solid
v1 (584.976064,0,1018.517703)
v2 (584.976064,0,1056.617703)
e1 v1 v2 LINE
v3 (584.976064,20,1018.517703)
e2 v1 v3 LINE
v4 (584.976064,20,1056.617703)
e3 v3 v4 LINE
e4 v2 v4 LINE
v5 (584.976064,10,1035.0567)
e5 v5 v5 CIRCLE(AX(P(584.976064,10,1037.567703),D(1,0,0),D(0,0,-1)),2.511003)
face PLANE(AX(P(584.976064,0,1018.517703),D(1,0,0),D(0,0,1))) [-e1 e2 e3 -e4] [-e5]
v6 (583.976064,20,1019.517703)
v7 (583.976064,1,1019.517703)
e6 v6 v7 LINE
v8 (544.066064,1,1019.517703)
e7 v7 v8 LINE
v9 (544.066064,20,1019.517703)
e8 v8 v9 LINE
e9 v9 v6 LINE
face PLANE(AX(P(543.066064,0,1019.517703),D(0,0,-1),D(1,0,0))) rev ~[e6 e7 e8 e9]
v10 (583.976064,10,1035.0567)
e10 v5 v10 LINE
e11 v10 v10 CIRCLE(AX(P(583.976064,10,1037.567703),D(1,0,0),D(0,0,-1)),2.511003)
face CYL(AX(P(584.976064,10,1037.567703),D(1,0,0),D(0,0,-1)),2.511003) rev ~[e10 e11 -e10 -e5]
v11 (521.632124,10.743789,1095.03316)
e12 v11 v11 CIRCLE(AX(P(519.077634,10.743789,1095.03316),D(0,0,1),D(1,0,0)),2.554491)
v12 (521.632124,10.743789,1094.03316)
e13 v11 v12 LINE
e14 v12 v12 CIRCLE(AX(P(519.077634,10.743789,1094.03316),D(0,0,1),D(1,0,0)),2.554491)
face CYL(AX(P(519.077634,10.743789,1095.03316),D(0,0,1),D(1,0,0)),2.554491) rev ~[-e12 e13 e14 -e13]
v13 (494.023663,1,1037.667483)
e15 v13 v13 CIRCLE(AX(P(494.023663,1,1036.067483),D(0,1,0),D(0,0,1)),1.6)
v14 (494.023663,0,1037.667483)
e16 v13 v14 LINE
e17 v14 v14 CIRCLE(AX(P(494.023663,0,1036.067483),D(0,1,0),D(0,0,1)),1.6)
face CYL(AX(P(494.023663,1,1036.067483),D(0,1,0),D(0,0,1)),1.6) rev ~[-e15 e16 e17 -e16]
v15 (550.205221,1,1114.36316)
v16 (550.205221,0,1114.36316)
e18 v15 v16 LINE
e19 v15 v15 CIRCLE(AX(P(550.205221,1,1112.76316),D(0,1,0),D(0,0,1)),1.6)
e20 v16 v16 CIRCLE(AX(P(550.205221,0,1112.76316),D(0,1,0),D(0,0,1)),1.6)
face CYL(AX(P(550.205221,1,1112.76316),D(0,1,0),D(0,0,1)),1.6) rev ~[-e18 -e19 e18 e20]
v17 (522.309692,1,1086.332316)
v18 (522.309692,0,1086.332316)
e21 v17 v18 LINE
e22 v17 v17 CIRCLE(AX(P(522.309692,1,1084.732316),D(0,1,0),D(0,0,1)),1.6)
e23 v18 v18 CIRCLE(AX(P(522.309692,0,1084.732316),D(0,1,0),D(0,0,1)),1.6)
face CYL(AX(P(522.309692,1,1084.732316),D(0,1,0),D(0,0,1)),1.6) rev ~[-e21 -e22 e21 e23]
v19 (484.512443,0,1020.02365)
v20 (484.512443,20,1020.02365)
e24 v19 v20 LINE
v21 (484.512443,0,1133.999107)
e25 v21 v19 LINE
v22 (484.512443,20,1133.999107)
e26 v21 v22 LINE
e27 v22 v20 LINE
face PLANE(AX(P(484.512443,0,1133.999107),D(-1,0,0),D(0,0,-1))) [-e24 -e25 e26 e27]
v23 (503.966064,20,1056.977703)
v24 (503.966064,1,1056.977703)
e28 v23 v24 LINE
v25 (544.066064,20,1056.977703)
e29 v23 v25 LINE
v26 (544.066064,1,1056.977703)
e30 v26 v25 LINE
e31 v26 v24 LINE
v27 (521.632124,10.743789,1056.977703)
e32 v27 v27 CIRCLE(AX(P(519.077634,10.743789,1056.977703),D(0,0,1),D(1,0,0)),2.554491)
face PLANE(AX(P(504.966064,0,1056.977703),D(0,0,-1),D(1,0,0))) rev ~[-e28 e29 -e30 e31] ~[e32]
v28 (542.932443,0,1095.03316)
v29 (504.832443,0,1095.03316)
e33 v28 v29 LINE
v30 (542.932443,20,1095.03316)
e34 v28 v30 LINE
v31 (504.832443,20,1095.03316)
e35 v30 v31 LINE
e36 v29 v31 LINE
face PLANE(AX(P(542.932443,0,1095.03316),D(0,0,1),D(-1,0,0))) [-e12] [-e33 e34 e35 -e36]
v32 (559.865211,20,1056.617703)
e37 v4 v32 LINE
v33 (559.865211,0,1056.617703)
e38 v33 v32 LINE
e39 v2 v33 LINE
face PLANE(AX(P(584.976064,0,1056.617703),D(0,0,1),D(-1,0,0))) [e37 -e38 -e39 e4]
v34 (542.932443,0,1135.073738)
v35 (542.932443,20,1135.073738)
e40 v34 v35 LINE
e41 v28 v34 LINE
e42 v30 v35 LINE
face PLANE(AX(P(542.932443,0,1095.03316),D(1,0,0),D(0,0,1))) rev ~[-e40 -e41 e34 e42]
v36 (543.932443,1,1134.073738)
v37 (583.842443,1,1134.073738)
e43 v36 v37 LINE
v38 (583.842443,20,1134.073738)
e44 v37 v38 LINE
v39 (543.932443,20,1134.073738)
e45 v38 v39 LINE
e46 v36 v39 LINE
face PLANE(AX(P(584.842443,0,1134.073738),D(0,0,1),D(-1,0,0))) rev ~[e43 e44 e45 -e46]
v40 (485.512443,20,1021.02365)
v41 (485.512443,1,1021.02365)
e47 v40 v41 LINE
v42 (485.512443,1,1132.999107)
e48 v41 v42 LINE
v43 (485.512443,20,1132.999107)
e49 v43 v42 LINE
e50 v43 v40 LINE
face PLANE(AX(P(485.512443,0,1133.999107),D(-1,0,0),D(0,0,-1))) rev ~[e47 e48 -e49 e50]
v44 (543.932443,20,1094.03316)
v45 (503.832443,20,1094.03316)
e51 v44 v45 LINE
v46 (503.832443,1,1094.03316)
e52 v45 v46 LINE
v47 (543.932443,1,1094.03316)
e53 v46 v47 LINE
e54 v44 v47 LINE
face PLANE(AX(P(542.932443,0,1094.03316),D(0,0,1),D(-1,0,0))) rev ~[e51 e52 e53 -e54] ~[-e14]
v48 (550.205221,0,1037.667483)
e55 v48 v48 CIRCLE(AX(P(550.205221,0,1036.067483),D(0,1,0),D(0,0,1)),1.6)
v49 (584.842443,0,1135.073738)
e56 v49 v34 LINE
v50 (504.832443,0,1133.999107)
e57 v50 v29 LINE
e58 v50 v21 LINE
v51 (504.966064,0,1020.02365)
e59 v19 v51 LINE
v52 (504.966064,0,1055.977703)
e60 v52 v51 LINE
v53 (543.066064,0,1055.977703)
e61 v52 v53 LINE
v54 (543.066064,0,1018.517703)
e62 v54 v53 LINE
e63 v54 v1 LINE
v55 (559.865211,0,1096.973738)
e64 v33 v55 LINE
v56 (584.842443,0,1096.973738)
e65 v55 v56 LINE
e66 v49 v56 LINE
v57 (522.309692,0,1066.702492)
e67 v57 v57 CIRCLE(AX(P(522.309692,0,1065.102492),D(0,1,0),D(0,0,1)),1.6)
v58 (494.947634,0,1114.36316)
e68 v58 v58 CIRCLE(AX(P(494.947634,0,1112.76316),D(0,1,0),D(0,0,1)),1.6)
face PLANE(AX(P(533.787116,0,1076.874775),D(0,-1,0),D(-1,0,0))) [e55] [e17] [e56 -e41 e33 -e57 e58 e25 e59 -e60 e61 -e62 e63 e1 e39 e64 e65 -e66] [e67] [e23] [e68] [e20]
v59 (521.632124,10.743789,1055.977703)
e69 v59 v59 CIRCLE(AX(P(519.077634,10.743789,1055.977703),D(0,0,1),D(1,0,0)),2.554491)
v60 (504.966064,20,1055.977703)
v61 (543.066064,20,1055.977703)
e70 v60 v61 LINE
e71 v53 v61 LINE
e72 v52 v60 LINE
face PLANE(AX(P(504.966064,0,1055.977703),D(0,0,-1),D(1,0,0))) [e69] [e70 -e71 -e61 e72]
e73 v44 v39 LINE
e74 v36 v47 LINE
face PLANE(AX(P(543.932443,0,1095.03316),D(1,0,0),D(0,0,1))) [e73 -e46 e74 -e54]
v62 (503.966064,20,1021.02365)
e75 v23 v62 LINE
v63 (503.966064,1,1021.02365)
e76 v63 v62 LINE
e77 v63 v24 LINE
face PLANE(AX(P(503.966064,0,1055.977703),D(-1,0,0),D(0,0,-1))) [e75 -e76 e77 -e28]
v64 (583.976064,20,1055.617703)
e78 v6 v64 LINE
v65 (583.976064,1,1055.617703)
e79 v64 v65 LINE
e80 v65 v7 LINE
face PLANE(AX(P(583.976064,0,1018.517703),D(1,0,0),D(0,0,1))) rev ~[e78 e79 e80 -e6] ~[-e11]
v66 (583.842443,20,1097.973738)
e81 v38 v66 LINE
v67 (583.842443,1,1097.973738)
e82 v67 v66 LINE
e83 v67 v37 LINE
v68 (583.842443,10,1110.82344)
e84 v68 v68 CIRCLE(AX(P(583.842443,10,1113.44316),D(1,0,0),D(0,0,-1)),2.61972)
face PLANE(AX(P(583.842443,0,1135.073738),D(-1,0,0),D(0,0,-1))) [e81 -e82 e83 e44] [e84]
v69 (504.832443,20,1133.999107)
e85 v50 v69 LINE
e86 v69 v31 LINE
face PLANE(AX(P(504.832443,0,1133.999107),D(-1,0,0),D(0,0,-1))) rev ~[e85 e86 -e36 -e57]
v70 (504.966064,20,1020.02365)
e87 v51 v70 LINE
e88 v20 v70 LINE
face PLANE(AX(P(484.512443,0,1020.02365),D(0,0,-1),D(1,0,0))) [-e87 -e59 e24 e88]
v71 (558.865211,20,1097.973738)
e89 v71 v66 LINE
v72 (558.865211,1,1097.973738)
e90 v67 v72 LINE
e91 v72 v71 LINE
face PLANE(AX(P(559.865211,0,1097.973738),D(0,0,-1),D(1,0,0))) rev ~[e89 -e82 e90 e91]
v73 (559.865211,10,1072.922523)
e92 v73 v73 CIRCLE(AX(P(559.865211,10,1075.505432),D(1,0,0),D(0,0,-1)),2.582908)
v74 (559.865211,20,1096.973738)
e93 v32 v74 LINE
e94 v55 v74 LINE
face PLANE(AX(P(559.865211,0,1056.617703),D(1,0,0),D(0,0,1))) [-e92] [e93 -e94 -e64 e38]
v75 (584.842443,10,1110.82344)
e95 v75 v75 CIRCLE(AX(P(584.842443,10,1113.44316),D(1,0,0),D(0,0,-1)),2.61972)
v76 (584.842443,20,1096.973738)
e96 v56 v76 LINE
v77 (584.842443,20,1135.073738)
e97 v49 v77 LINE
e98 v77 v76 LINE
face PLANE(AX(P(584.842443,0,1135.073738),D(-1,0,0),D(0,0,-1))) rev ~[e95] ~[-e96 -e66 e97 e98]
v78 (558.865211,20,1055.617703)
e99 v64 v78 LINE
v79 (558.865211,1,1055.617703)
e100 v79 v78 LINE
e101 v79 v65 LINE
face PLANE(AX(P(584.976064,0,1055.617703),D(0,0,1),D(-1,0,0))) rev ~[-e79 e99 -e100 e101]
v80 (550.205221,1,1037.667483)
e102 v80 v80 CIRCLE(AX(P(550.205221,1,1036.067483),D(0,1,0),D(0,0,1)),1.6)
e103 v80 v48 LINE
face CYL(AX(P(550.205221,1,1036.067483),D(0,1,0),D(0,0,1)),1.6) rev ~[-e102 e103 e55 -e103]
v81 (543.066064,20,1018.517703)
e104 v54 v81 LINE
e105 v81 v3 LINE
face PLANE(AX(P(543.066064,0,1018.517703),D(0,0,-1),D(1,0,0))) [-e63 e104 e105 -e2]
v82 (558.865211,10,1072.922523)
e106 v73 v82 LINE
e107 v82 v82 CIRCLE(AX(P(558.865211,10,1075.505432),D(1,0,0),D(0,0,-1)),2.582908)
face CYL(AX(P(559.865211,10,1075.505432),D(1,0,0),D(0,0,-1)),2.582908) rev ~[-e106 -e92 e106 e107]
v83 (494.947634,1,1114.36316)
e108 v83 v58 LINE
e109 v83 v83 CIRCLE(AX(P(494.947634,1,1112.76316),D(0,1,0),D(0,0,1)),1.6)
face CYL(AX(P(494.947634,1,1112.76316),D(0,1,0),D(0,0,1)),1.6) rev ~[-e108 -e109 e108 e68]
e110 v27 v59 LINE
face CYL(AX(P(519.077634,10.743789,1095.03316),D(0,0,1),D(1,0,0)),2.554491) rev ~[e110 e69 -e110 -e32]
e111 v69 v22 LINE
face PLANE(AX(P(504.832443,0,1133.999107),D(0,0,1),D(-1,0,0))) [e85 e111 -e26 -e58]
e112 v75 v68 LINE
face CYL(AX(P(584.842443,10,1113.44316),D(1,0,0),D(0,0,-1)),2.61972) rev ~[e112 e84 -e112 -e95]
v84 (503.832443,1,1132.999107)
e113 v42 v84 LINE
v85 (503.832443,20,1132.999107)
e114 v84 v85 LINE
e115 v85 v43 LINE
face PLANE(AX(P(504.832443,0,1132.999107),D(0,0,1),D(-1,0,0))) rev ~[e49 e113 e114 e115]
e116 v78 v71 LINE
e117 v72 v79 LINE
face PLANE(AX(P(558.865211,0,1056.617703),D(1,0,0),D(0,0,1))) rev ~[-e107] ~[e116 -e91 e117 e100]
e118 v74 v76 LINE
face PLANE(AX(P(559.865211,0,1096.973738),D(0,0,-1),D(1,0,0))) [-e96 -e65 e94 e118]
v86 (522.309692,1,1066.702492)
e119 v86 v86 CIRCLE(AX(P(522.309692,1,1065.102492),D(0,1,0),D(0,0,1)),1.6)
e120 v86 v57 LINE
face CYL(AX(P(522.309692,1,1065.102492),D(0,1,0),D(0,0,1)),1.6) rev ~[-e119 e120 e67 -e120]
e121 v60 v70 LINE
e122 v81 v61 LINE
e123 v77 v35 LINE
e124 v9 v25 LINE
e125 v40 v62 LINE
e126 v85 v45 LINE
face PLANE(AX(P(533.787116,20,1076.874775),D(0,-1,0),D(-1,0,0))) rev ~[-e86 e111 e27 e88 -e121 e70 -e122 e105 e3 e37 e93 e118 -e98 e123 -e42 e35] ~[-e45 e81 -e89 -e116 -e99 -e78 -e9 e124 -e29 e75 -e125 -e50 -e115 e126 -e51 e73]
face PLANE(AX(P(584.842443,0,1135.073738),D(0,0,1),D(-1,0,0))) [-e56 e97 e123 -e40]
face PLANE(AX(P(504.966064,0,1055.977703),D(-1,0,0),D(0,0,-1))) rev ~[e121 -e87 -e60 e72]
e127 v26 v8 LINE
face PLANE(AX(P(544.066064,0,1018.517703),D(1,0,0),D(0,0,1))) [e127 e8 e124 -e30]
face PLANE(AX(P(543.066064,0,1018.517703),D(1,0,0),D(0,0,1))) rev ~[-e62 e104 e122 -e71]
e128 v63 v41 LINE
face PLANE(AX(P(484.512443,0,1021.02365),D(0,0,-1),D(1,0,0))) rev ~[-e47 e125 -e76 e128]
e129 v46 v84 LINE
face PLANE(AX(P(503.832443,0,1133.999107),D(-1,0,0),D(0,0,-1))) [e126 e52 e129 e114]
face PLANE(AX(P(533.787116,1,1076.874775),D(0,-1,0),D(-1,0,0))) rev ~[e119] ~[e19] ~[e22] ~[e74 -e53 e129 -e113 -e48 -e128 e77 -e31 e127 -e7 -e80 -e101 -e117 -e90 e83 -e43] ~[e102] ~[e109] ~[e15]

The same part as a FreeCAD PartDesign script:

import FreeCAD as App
import Part
import Sketcher


def faces_at(feature, points):
    """Names of the faces that lie closest to the given points."""
    faces = feature.Shape.Faces
    near = lambda p: min(range(len(faces)), key=lambda i: faces[i].distToShape(Part.Vertex(*p))[0])
    return sorted({f"Face{near(p) + 1}" for p in points})


def add_polygon(sketch, points):
    """Adds a closed chain of lines whose ends are joined by coincident constraints."""
    first, n = sketch.GeometryCount, len(points)
    for a, b in zip(points, points[1:] + points[:1]):
        sketch.addGeometry(Part.LineSegment(App.Vector(*a, 0), App.Vector(*b, 0)), False)
    for i in range(n):
        sketch.addConstraint(Sketcher.Constraint("Coincident", first + i, 2, first + (i + 1) % n, 1))

doc = App.newDocument("Part")
params = doc.addObject("Spreadsheet::Sheet", "Params")
for row, (alias, value) in enumerate([
    ("sketch1_width", "38.1 mm"),
    ("sketch1_width2", "20.32 mm"),
    ("sketch1_width3", "41.91 mm"),
    ("sketch1_height", "37.46 mm"),
    ("pad1_length", "20 mm"),
    ("thickness_wall", "1 mm"),
    ("pocket1_length", "40.64 mm"),
    ("pocket2_length", "10 mm"),
    ("pocket3_length", "10 mm"),
    ("pocket4_length", "10 mm"),
    ("sketch6_diameter", "3.2 mm"),
    ("pocket5_length", "10 mm"),
], start=1):
    params.set(f"A{row}", alias)
    params.set(f"B{row}", "=" + value)
    params.setAlias(f"B{row}", alias)

body = doc.addObject("PartDesign::Body", "Body")

sketch1 = doc.addObject("Sketcher::SketchObject", "Sketch")
body.addObject(sketch1)
sketch1.AttachmentSupport = (doc.XZ_Plane, [""])
sketch1.MapMode = "FlatFace"
add_polygon(sketch1, [(543, 1019), (543, 1056), (505, 1056), (505, 1020), (485, 1020), (485, 1134), (505, 1134), (505, 1095), (543, 1095), (543, 1135), (585, 1135), (585, 1097), (560, 1097), (560, 1057), (585, 1057), (585, 1019)])
sketch1.addConstraint([
    Sketcher.Constraint("Vertical", 0),
    Sketcher.Constraint("Horizontal", 1),
    Sketcher.Constraint("Vertical", 2),
    Sketcher.Constraint("Horizontal", 3),
    Sketcher.Constraint("Vertical", 4),
    Sketcher.Constraint("Horizontal", 5),
    Sketcher.Constraint("Vertical", 6),
    Sketcher.Constraint("Horizontal", 7),
    Sketcher.Constraint("Vertical", 8),
    Sketcher.Constraint("Horizontal", 9),
    Sketcher.Constraint("Vertical", 10),
    Sketcher.Constraint("Horizontal", 11),
    Sketcher.Constraint("Vertical", 12),
    Sketcher.Constraint("Horizontal", 13),
    Sketcher.Constraint("Vertical", 14),
    Sketcher.Constraint("Horizontal", 15),
    Sketcher.Constraint("Equal", 1, 7),
    Sketcher.Constraint("Equal", 9, 15),
    Sketcher.Constraint("Equal", 7, 10),
    Sketcher.Constraint("Equal", 10, 14),
    Sketcher.Constraint("DistanceX", 1, 2, 1, 1, 38.1),
    Sketcher.Constraint("DistanceX", 5, 1, 5, 2, 20.32),
    Sketcher.Constraint("DistanceX", 9, 1, 9, 2, 41.91),
    Sketcher.Constraint("DistanceY", 0, 1, 0, 2, 37.46),
    Sketcher.Constraint("DistanceX", 3, 2, 3, 1, 20.453621),
    Sketcher.Constraint("DistanceX", 11, 2, 11, 1, 24.977232),
    Sketcher.Constraint("DistanceY", 2, 2, 2, 1, 35.954053),
    Sketcher.Constraint("DistanceY", 4, 1, 4, 2, 113.975457),
    Sketcher.Constraint("DistanceY", 6, 2, 6, 1, 38.965947),
    Sketcher.Constraint("DistanceY", 8, 1, 8, 2, 40.040578),
    Sketcher.Constraint("DistanceY", -1, 1, 2, 2, 1020.02365),
    Sketcher.Constraint("DistanceX", -1, 1, 11, 2, 559.865211),
])
sketch1.setExpression("Constraints[36]", "Params.sketch1_width")
sketch1.setExpression("Constraints[37]", "Params.sketch1_width2")
sketch1.setExpression("Constraints[38]", "Params.sketch1_width3")
sketch1.setExpression("Constraints[39]", "Params.sketch1_height")
pad1 = doc.addObject("PartDesign::Pad", "Pad")
body.addObject(pad1)
pad1.Profile = sketch1
pad1.setExpression("Length", "Params.pad1_length")
pad1.Reversed = True
doc.recompute()

thickness = doc.addObject("PartDesign::Thickness", "Thickness")
body.addObject(thickness)
thickness.Base = (pad1, faces_at(pad1, [(534.744, 20, 1076.796)]))
thickness.setExpression("Value", "Params.thickness_wall")
thickness.Reversed = True
thickness.Join = "Intersection"

sketch2 = doc.addObject("Sketcher::SketchObject", "Sketch001")
body.addObject(sketch2)
sketch2.AttachmentSupport = (doc.XY_Plane, [""])
sketch2.MapMode = "FlatFace"
sketch2.AttachmentOffset = App.Placement(App.Vector(0, 0, 1095.03316), App.Rotation())
sketch2.addGeometry(Part.Circle(App.Vector(519.1, 10.7, 0), App.Vector(0, 0, 1), 2.6), False)
sketch2.addConstraint([
    Sketcher.Constraint("Diameter", 0, 5.108981),
    Sketcher.Constraint("DistanceY", -1, 1, 0, 3, 10.743789),
    Sketcher.Constraint("DistanceX", -1, 1, 0, 3, 519.077634),
])
pocket1 = doc.addObject("PartDesign::Pocket", "Pocket")
body.addObject(pocket1)
pocket1.Profile = sketch2
pocket1.setExpression("Length", "Params.pocket1_length")

sketch3 = doc.addObject("Sketcher::SketchObject", "Sketch002")
body.addObject(sketch3)
sketch3.AttachmentSupport = (doc.YZ_Plane, [""])
sketch3.MapMode = "FlatFace"
sketch3.AttachmentOffset = App.Placement(App.Vector(0, 0, 584.976064), App.Rotation())
sketch3.addGeometry([
    Part.Circle(App.Vector(10, 1113.4, 0), App.Vector(0, 0, 1), 2.6),
    Part.Circle(App.Vector(10, 1075.5, 0), App.Vector(0, 0, 1), 2.6),
    Part.Circle(App.Vector(10, 1037.6, 0), App.Vector(0, 0, 1), 2.5),
], False)
sketch3.addConstraint([
    Sketcher.Constraint("Vertical", 0, 3, 1, 3),
    Sketcher.Constraint("Vertical", 1, 3, 2, 3),
    Sketcher.Constraint("DistanceX", -1, 1, 0, 3, 10.0),
    Sketcher.Constraint("Diameter", 0, 5.129637),
    Sketcher.Constraint("Diameter", 1, 5.146407),
    Sketcher.Constraint("Diameter", 2, 5.022005),
    Sketcher.Constraint("DistanceY", -1, 1, 0, 3, 1113.44316),
    Sketcher.Constraint("DistanceY", -1, 1, 1, 3, 1075.505432),
    Sketcher.Constraint("DistanceY", 2, 3, 1, 3, 37.937728),
])
pocket2 = doc.addObject("PartDesign::Pocket", "Pocket001")
body.addObject(pocket2)
pocket2.Profile = sketch3
pocket2.setExpression("Length", "Params.pocket2_length")

sketch4 = doc.addObject("Sketcher::SketchObject", "Sketch003")
body.addObject(sketch4)
sketch4.AttachmentSupport = (doc.YZ_Plane, [""])
sketch4.MapMode = "FlatFace"
sketch4.AttachmentOffset = App.Placement(App.Vector(0, 0, 559.865211), App.Rotation())
sketch4.addGeometry(Part.Circle(App.Vector(10, 1075.5, 0), App.Vector(0, 0, 1), 2.6), False)
sketch4.addConstraint([
    Sketcher.Constraint("DistanceX", -1, 1, 0, 3, 10.0),
    Sketcher.Constraint("Diameter", 0, 5.165817),
    Sketcher.Constraint("DistanceY", -1, 1, 0, 3, 1075.505432),
])
pocket3 = doc.addObject("PartDesign::Pocket", "Pocket002")
body.addObject(pocket3)
pocket3.Profile = sketch4
pocket3.setExpression("Length", "Params.pocket3_length")

sketch5 = doc.addObject("Sketcher::SketchObject", "Sketch004")
body.addObject(sketch5)
sketch5.AttachmentSupport = (doc.YZ_Plane, [""])
sketch5.MapMode = "FlatFace"
sketch5.AttachmentOffset = App.Placement(App.Vector(0, 0, 584.842443), App.Rotation())
sketch5.addGeometry(Part.Circle(App.Vector(10, 1113.4, 0), App.Vector(0, 0, 1), 2.6), False)
sketch5.addConstraint([
    Sketcher.Constraint("DistanceX", -1, 1, 0, 3, 10.0),
    Sketcher.Constraint("Diameter", 0, 5.239441),
    Sketcher.Constraint("DistanceY", -1, 1, 0, 3, 1113.44316),
])
pocket4 = doc.addObject("PartDesign::Pocket", "Pocket003")
body.addObject(pocket4)
pocket4.Profile = sketch5
pocket4.setExpression("Length", "Params.pocket4_length")

sketch6 = doc.addObject("Sketcher::SketchObject", "Sketch005")
body.addObject(sketch6)
sketch6.AttachmentSupport = (doc.XZ_Plane, [""])
sketch6.MapMode = "FlatFace"
sketch6.AttachmentOffset = App.Placement(App.Vector(0, 0, -1), App.Rotation())
sketch6.addGeometry([
    Part.Circle(App.Vector(494.9, 1112.8, 0), App.Vector(0, 0, 1), 1.6),
    Part.Circle(App.Vector(550.2, 1112.8, 0), App.Vector(0, 0, 1), 1.6),
    Part.Circle(App.Vector(522.3, 1084.7, 0), App.Vector(0, 0, 1), 1.6),
    Part.Circle(App.Vector(522.3, 1065.1, 0), App.Vector(0, 0, 1), 1.6),
    Part.Circle(App.Vector(550.2, 1036.1, 0), App.Vector(0, 0, 1), 1.6),
    Part.Circle(App.Vector(494, 1036.1, 0), App.Vector(0, 0, 1), 1.6),
], False)
sketch6.addConstraint([
    Sketcher.Constraint("Equal", 0, 1),
    Sketcher.Constraint("Equal", 1, 2),
    Sketcher.Constraint("Equal", 2, 3),
    Sketcher.Constraint("Equal", 3, 4),
    Sketcher.Constraint("Equal", 4, 5),
    Sketcher.Constraint("Horizontal", 0, 3, 1, 3),
    Sketcher.Constraint("Horizontal", 4, 3, 5, 3),
    Sketcher.Constraint("Vertical", 2, 3, 3, 3),
    Sketcher.Constraint("Vertical", 1, 3, 4, 3),
    Sketcher.Constraint("Diameter", 0, 3.2),
    Sketcher.Constraint("DistanceY", -1, 1, 0, 3, 1112.76316),
    Sketcher.Constraint("DistanceX", -1, 1, 1, 3, 550.205221),
    Sketcher.Constraint("DistanceX", 0, 3, 2, 3, 27.362058),
    Sketcher.Constraint("DistanceX", 2, 3, 1, 3, 27.895528),
    Sketcher.Constraint("DistanceY", 4, 3, 3, 3, 29.035009),
    Sketcher.Constraint("DistanceX", 5, 3, 3, 3, 28.286029),
    Sketcher.Constraint("DistanceY", -1, 1, 2, 3, 1084.732316),
    Sketcher.Constraint("DistanceY", -1, 1, 3, 3, 1065.102492),
])
sketch6.setExpression("Constraints[9]", "Params.sketch6_diameter")
pocket5 = doc.addObject("PartDesign::Pocket", "Pocket004")
body.addObject(pocket5)
pocket5.Profile = sketch6
pocket5.setExpression("Length", "Params.pocket5_length")
pocket5.Reversed = True

doc.recompute()
